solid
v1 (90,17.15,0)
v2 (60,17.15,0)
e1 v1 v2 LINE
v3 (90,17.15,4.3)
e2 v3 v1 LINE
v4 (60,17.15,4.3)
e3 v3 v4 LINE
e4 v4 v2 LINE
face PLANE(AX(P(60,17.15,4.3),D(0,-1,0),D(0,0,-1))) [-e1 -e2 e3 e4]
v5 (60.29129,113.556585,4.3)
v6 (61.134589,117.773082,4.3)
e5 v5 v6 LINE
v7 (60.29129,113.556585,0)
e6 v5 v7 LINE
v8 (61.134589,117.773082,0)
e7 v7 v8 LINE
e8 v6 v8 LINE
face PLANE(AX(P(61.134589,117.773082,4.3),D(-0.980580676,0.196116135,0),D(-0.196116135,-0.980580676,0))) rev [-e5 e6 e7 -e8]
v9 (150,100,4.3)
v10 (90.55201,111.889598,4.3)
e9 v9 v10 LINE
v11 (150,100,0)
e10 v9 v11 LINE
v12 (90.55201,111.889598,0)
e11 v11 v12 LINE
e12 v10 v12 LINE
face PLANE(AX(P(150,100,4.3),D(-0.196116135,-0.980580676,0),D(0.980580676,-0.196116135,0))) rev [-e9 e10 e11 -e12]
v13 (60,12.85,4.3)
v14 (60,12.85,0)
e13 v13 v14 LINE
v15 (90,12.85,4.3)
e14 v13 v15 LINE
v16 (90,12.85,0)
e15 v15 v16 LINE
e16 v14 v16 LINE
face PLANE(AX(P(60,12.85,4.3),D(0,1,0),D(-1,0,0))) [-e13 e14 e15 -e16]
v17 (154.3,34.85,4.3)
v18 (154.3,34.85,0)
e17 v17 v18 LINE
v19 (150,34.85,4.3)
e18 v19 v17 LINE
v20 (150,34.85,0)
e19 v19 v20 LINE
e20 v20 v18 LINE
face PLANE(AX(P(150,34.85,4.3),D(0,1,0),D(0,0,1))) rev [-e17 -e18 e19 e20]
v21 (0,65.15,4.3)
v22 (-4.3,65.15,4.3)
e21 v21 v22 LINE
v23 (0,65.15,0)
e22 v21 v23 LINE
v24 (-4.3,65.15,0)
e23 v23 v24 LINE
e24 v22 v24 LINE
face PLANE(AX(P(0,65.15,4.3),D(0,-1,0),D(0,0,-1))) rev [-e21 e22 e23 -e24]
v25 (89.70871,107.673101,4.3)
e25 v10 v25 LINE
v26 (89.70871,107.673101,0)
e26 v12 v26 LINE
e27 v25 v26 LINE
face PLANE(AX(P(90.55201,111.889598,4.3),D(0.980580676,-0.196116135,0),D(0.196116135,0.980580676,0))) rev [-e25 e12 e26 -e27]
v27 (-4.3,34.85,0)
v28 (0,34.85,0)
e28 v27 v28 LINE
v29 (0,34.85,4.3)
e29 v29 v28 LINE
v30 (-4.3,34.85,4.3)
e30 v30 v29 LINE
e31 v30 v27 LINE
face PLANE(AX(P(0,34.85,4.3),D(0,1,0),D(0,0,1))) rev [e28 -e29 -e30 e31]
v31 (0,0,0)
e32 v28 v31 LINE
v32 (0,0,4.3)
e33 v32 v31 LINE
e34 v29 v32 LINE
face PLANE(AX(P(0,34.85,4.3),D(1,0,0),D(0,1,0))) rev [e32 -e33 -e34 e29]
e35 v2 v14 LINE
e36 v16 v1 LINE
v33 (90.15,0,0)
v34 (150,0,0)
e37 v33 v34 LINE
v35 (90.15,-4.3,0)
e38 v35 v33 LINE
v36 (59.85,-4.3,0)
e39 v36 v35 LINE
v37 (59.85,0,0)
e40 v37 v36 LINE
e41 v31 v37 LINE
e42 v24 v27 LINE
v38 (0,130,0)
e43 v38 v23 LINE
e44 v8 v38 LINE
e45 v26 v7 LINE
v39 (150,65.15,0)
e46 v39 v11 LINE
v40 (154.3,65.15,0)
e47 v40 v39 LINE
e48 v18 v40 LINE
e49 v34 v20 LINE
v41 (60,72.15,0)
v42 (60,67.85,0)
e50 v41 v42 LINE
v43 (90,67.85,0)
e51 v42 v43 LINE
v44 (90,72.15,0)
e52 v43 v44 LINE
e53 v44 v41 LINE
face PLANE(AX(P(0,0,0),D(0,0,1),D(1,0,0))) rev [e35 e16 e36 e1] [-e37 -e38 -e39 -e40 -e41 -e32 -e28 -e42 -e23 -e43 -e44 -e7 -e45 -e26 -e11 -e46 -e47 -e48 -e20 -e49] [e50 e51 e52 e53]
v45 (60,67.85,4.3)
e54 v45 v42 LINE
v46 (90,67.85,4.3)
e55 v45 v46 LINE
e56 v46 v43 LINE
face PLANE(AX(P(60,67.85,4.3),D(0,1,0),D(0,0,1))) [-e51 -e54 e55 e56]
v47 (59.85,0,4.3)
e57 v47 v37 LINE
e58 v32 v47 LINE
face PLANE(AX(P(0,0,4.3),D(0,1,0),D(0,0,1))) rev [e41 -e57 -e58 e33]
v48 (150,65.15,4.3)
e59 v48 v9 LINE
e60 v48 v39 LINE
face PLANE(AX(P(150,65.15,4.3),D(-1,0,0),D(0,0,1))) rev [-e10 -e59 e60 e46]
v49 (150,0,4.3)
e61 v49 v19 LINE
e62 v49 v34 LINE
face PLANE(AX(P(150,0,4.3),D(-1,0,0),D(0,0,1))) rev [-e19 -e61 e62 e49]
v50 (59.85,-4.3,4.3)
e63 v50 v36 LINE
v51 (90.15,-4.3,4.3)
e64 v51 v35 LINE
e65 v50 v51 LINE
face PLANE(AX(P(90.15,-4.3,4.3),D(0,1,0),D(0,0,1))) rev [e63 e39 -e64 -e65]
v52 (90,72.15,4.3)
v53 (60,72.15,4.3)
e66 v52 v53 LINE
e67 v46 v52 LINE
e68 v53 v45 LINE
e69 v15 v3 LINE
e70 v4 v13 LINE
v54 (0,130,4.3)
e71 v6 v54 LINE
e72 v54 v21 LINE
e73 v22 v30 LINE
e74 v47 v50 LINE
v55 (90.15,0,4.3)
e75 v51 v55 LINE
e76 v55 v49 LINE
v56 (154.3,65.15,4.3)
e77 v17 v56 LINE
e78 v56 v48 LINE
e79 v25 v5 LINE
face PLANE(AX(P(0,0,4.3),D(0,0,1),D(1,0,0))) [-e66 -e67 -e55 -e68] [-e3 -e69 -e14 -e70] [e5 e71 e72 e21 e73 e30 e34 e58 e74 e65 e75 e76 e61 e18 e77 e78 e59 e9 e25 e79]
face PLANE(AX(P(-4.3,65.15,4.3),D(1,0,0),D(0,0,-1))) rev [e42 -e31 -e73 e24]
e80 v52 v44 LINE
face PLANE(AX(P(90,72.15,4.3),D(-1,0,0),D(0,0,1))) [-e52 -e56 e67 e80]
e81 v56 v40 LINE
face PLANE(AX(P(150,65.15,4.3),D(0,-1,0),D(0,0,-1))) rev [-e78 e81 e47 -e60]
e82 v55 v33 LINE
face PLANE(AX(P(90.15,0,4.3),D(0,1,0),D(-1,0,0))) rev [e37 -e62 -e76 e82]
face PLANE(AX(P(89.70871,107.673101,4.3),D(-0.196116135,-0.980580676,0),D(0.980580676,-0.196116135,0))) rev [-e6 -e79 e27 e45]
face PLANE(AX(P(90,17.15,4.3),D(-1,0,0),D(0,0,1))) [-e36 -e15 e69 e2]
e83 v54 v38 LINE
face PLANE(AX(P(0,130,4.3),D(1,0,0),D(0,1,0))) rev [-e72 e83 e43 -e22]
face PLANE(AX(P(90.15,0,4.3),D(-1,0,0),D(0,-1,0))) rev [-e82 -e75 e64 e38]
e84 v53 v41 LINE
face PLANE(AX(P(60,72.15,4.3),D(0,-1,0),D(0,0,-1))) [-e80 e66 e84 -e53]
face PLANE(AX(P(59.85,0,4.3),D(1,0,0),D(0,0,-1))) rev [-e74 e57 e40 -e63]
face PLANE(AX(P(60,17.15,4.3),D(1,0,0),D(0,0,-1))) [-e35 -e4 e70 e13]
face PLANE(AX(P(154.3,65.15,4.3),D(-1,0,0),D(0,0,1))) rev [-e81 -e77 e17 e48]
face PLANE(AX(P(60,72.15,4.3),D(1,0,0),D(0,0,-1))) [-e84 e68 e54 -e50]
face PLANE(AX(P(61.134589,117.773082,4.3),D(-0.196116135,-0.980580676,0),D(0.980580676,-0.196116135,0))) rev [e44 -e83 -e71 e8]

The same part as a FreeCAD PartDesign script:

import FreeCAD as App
import Part
import Sketcher

V = App.Vector

doc = App.newDocument("Part")
body = doc.addObject("PartDesign::Body", "Body")

# Sketch on XY plane
sketch1 = doc.addObject("Sketcher::SketchObject", "Sketch")
body.addObject(sketch1)
sketch1.AttachmentSupport = (doc.XY_Plane, [""])
sketch1.MapMode = "FlatFace"
sketch1.addGeometry(Part.LineSegment(V(0, 130, 0), V(0, 65.2, 0)), False)
sketch1.addGeometry(Part.LineSegment(V(0, 65.2, 0), V(-4.3, 65.2, 0)), False)
sketch1.addGeometry(Part.LineSegment(V(-4.3, 65.2, 0), V(-4.3, 34.9, 0)), False)
sketch1.addGeometry(Part.LineSegment(V(-4.3, 34.9, 0), V(0, 34.9, 0)), False)
sketch1.addGeometry(Part.LineSegment(V(0, 34.9, 0), V(0, 0, 0)), False)
sketch1.addGeometry(Part.LineSegment(V(0, 0, 0), V(59.9, 0, 0)), False)
sketch1.addGeometry(Part.LineSegment(V(59.9, 0, 0), V(59.9, -4.3, 0)), False)
sketch1.addGeometry(Part.LineSegment(V(59.9, -4.3, 0), V(90.2, -4.3, 0)), False)
sketch1.addGeometry(Part.LineSegment(V(90.2, -4.3, 0), V(90.2, 0, 0)), False)
sketch1.addGeometry(Part.LineSegment(V(90.2, 0, 0), V(150, 0, 0)), False)
sketch1.addGeometry(Part.LineSegment(V(150, 0, 0), V(150, 34.9, 0)), False)
sketch1.addGeometry(Part.LineSegment(V(150, 34.9, 0), V(154.3, 34.9, 0)), False)
sketch1.addGeometry(Part.LineSegment(V(154.3, 34.9, 0), V(154.3, 65.2, 0)), False)
sketch1.addGeometry(Part.LineSegment(V(154.3, 65.2, 0), V(150, 65.2, 0)), False)
sketch1.addGeometry(Part.LineSegment(V(150, 65.2, 0), V(150, 100, 0)), False)
sketch1.addGeometry(Part.LineSegment(V(150, 100, 0), V(90.6, 111.9, 0)), False)
sketch1.addGeometry(Part.LineSegment(V(90.6, 111.9, 0), V(89.7, 107.7, 0)), False)
sketch1.addGeometry(Part.LineSegment(V(89.7, 107.7, 0), V(60.3, 113.6, 0)), False)
sketch1.addGeometry(Part.LineSegment(V(60.3, 113.6, 0), V(61.1, 117.8, 0)), False)
sketch1.addGeometry(Part.LineSegment(V(61.1, 117.8, 0), V(0, 130, 0)), False)
sketch1.addGeometry(Part.LineSegment(V(90, 12.8, 0), V(60, 12.8, 0)), False)
sketch1.addGeometry(Part.LineSegment(V(60, 12.8, 0), V(60, 17.1, 0)), False)
sketch1.addGeometry(Part.LineSegment(V(60, 17.1, 0), V(90, 17.1, 0)), False)
sketch1.addGeometry(Part.LineSegment(V(90, 17.1, 0), V(90, 12.8, 0)), False)
sketch1.addGeometry(Part.LineSegment(V(90, 67.8, 0), V(60, 67.8, 0)), False)
sketch1.addGeometry(Part.LineSegment(V(60, 67.8, 0), V(60, 72.2, 0)), False)
sketch1.addGeometry(Part.LineSegment(V(60, 72.2, 0), V(90, 72.2, 0)), False)
sketch1.addGeometry(Part.LineSegment(V(90, 72.2, 0), V(90, 67.8, 0)), False)
sketch1.addConstraint(Sketcher.Constraint("Coincident", 0, 2, 1, 1))
sketch1.addConstraint(Sketcher.Constraint("Coincident", 1, 2, 2, 1))
sketch1.addConstraint(Sketcher.Constraint("Coincident", 2, 2, 3, 1))
sketch1.addConstraint(Sketcher.Constraint("Coincident", 3, 2, 4, 1))
sketch1.addConstraint(Sketcher.Constraint("Coincident", 4, 2, 5, 1))
sketch1.addConstraint(Sketcher.Constraint("Coincident", 5, 2, 6, 1))
sketch1.addConstraint(Sketcher.Constraint("Coincident", 6, 2, 7, 1))
sketch1.addConstraint(Sketcher.Constraint("Coincident", 7, 2, 8, 1))
sketch1.addConstraint(Sketcher.Constraint("Coincident", 8, 2, 9, 1))
sketch1.addConstraint(Sketcher.Constraint("Coincident", 9, 2, 10, 1))
sketch1.addConstraint(Sketcher.Constraint("Coincident", 10, 2, 11, 1))
sketch1.addConstraint(Sketcher.Constraint("Coincident", 11, 2, 12, 1))
sketch1.addConstraint(Sketcher.Constraint("Coincident", 12, 2, 13, 1))
sketch1.addConstraint(Sketcher.Constraint("Coincident", 13, 2, 14, 1))
sketch1.addConstraint(Sketcher.Constraint("Coincident", 14, 2, 15, 1))
sketch1.addConstraint(Sketcher.Constraint("Coincident", 15, 2, 16, 1))
sketch1.addConstraint(Sketcher.Constraint("Coincident", 16, 2, 17, 1))
sketch1.addConstraint(Sketcher.Constraint("Coincident", 17, 2, 18, 1))
sketch1.addConstraint(Sketcher.Constraint("Coincident", 18, 2, 19, 1))
sketch1.addConstraint(Sketcher.Constraint("Coincident", 19, 2, 0, 1))
sketch1.addConstraint(Sketcher.Constraint("Coincident", 20, 2, 21, 1))
sketch1.addConstraint(Sketcher.Constraint("Coincident", 21, 2, 22, 1))
sketch1.addConstraint(Sketcher.Constraint("Coincident", 22, 2, 23, 1))
sketch1.addConstraint(Sketcher.Constraint("Coincident", 23, 2, 20, 1))
sketch1.addConstraint(Sketcher.Constraint("Coincident", 24, 2, 25, 1))
sketch1.addConstraint(Sketcher.Constraint("Coincident", 25, 2, 26, 1))
sketch1.addConstraint(Sketcher.Constraint("Coincident", 26, 2, 27, 1))
sketch1.addConstraint(Sketcher.Constraint("Coincident", 27, 2, 24, 1))
sketch1.addConstraint(Sketcher.Constraint("Vertical", 0))
sketch1.addConstraint(Sketcher.Constraint("Horizontal", 1))
sketch1.addConstraint(Sketcher.Constraint("Vertical", 2))
sketch1.addConstraint(Sketcher.Constraint("Horizontal", 3))
sketch1.addConstraint(Sketcher.Constraint("Vertical", 4))
sketch1.addConstraint(Sketcher.Constraint("Horizontal", 5))
sketch1.addConstraint(Sketcher.Constraint("Vertical", 6))
sketch1.addConstraint(Sketcher.Constraint("Horizontal", 7))
sketch1.addConstraint(Sketcher.Constraint("Vertical", 8))
sketch1.addConstraint(Sketcher.Constraint("Horizontal", 9))
sketch1.addConstraint(Sketcher.Constraint("Vertical", 10))
sketch1.addConstraint(Sketcher.Constraint("Horizontal", 11))
sketch1.addConstraint(Sketcher.Constraint("Vertical", 12))
sketch1.addConstraint(Sketcher.Constraint("Horizontal", 13))
sketch1.addConstraint(Sketcher.Constraint("Vertical", 14))
sketch1.addConstraint(Sketcher.Constraint("Horizontal", 20))
sketch1.addConstraint(Sketcher.Constraint("Vertical", 21))
sketch1.addConstraint(Sketcher.Constraint("Horizontal", 22))
sketch1.addConstraint(Sketcher.Constraint("Vertical", 23))
sketch1.addConstraint(Sketcher.Constraint("Horizontal", 24))
sketch1.addConstraint(Sketcher.Constraint("Vertical", 25))
sketch1.addConstraint(Sketcher.Constraint("Horizontal", 26))
sketch1.addConstraint(Sketcher.Constraint("Vertical", 27))
sketch1.addConstraint(Sketcher.Constraint("Coincident", 4, 2, -1, 1))
sketch1.addConstraint(Sketcher.Constraint("PointOnObject", 0, 2, -2))
sketch1.addConstraint(Sketcher.Constraint("PointOnObject", 8, 2, -1))
sketch1.addConstraint(Sketcher.Constraint("Perpendicular", 15, 16))
sketch1.addConstraint(Sketcher.Constraint("Perpendicular", 16, 17))
sketch1.addConstraint(Sketcher.Constraint("Perpendicular", 17, 18))
sketch1.addConstraint(Sketcher.Constraint("Perpendicular", 18, 19))
sketch1.addConstraint(Sketcher.Constraint("Horizontal", 3, 2, 10, 2))
sketch1.addConstraint(Sketcher.Constraint("Horizontal", 1, 2, 12, 2))
sketch1.addConstraint(Sketcher.Constraint("Vertical", 10, 2, 13, 2))
sketch1.addConstraint(Sketcher.Constraint("Vertical", 21, 2, 24, 2))
sketch1.addConstraint(Sketcher.Constraint("Vertical", 23, 2, 26, 2))
sketch1.addConstraint(Sketcher.Constraint("Equal", 5, 9))
sketch1.addConstraint(Sketcher.Constraint("Equal", 3, 11))
sketch1.addConstraint(Sketcher.Constraint("Equal", 7, 2))
sketch1.addConstraint(Sketcher.Constraint("Equal", 13, 6))
sketch1.addConstraint(Sketcher.Constraint("Equal", 10, 14))
sketch1.addConstraint(Sketcher.Constraint("Equal", 8, 21))
sketch1.addConstraint(Sketcher.Constraint("Equal", 23, 25))
sketch1.addConstraint(Sketcher.Constraint("Equal", 16, 18))
sketch1.addConstraint(Sketcher.Constraint("DistanceX", 20, 2, 20, 1, 30.0))
sketch1.addConstraint(Sketcher.Constraint("Distance", 17, 30.0))
sketch1.addConstraint(Sketcher.Constraint("DistanceX", 1, 2, 1, 1, 4.3))
sketch1.addConstraint(Sketcher.Constraint("DistanceX", 7, 1, 7, 2, 30.3))
sketch1.addConstraint(Sketcher.Constraint("DistanceX", -1, 1, 9, 2, 150.0))
sketch1.addConstraint(Sketcher.Constraint("DistanceY", -1, 1, 14, 2, 100.0))
sketch1.addConstraint(Sketcher.Constraint("DistanceY", -1, 1, 19, 2, 130.0))
sketch1.addConstraint(Sketcher.Constraint("DistanceX", -1, 1, 20, 2, 60.0))
sketch1.addConstraint(Sketcher.Constraint("Distance", 16, 4.3))
sketch1.addConstraint(Sketcher.Constraint("DistanceY", 21, 2, 24, 2, 50.7))
sketch1.addConstraint(Sketcher.Constraint("DistanceY", -1, 1, 20, 2, 12.85))
sketch1.addConstraint(Sketcher.Constraint("DistanceY", -1, 1, 15, 2, 111.889598))
pad1 = doc.addObject("PartDesign::Pad", "Pad")
body.addObject(pad1)
pad1.Profile = sketch1
pad1.Length = 4.3

doc.recompute()
